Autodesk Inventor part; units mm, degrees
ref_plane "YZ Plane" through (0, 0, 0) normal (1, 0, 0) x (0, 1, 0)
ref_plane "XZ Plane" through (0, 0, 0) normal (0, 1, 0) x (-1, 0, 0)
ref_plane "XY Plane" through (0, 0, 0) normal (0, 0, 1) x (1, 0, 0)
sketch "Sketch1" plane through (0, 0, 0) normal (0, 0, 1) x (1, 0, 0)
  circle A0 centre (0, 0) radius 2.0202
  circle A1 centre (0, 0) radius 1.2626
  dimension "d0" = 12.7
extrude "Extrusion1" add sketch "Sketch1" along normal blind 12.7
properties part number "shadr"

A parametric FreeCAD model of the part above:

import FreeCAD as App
import Part
import Sketcher
from FreeCAD import Vector
Q = App.Units.Quantity

doc = App.newDocument("Part")
body = doc.addObject("PartDesign::Body", "Body")

sketch1 = doc.addObject("Sketcher::SketchObject", "Sketch")
body.addObject(sketch1)
sketch1.AttachmentSupport = (doc.XY_Plane, [""])
sketch1.MapMode = "FlatFace"
sketch1.addGeometry([
    Part.Circle(Vector(0, 0, 0), Vector(0, 0, 1), 2),
    Part.Circle(Vector(0, 0, 0), Vector(0, 0, 1), 1.3),
], False)
sketch1.addConstraint([
    Sketcher.Constraint("Coincident", 0, 3, -1, 1),
    Sketcher.Constraint("Coincident", 1, 3, -1, 1),
    Sketcher.Constraint("Diameter", 0, Q("4.0404 mm")),
    Sketcher.Constraint("Diameter", 1, Q("2.5252 mm")),
])
pad1 = doc.addObject("PartDesign::Pad", "Pad")
body.addObject(pad1)
pad1.Profile = sketch1
pad1.Length = Q("0.5 in")

doc.recompute()
